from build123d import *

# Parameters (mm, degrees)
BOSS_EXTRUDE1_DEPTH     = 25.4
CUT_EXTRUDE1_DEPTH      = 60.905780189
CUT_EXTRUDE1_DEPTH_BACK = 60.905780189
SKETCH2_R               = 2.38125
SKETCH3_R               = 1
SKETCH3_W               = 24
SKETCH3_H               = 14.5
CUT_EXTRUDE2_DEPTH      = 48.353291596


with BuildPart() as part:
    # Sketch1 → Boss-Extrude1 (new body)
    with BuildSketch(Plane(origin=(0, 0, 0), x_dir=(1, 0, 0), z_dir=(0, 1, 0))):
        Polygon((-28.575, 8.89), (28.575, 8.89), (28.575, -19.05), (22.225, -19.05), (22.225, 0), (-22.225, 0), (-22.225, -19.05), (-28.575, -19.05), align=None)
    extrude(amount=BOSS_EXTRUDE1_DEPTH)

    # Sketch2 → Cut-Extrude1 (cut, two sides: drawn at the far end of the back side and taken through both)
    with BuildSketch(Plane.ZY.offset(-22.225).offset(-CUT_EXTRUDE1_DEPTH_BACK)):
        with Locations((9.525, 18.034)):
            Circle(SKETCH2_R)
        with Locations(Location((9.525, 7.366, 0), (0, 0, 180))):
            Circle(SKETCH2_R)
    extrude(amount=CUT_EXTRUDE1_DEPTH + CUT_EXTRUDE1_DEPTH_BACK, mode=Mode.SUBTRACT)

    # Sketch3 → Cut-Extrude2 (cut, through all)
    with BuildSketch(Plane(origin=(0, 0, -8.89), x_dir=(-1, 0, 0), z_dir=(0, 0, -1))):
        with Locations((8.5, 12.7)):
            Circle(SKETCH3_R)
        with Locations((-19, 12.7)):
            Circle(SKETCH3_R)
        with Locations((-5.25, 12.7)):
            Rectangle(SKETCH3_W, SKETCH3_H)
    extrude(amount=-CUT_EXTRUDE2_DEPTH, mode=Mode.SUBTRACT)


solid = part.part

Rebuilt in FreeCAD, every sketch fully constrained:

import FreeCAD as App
import Part
import Sketcher

V = App.Vector
Q = App.Units.Quantity


def add_polygon(sketch, points):
    """Adds a closed chain of lines whose ends are joined by coincident constraints."""
    first, n = sketch.GeometryCount, len(points)
    for a, b in zip(points, points[1:] + points[:1]):
        sketch.addGeometry(Part.LineSegment(App.Vector(*a, 0), App.Vector(*b, 0)), False)
    for i in range(n):
        sketch.addConstraint(Sketcher.Constraint("Coincident", first + i, 2, first + (i + 1) % n, 1))

doc = App.newDocument("Part")
body = doc.addObject("PartDesign::Body", "Body")

# Sketch on XZ plane
sketch1 = body.newObject("Sketcher::SketchObject", "Sketch")
sketch1.AttachmentSupport = (doc.getObject("XZ_Plane"), [""])
sketch1.MapMode = "FlatFace"
add_polygon(sketch1, [(29, -9), (-29, -9), (-29, 19), (-22, 19), (-22, 0), (22, 0), (22, 19), (29, 19)])  # lines 0-7
sketch1.addConstraint([
    Sketcher.Constraint("Horizontal", 0),
    Sketcher.Constraint("Vertical", 1),
    Sketcher.Constraint("Horizontal", 2),
    Sketcher.Constraint("Vertical", 3),
    Sketcher.Constraint("Horizontal", 4),
    Sketcher.Constraint("Vertical", 5),
    Sketcher.Constraint("Horizontal", 6),
    Sketcher.Constraint("Vertical", 7),
    Sketcher.Constraint("Symmetric", 3, 2, 4, 2, -1, 1),
    Sketcher.Constraint("Symmetric", 1, 2, 6, 2, -2),
    Sketcher.Constraint("DistanceY", 1, 1, 1, 2, Q("1.1 in")),
    Sketcher.Constraint("DistanceX", 0, 2, 4, 2, Q("2 in")),
    Sketcher.Constraint("DistanceX", 0, 2, 0, 1, Q("2.25 in")),
    Sketcher.Constraint("DistanceY", 3, 2, 3, 1, Q("0.75 in")),
])
pad1 = body.newObject("PartDesign::Pad", "Pad")
pad1.Profile = sketch1
pad1.Length = Q("1 in")
pad1.Reversed = True

# Sketch on YZ plane
sketch2 = body.newObject("Sketcher::SketchObject", "Sketch001")
sketch2.AttachmentSupport = (doc.getObject("YZ_Plane"), [""])
sketch2.MapMode = "FlatFace"
sketch2.AttachmentOffset = App.Placement(V(0, 0, 0.875 * 25.4), App.Rotation())
sketch2.addGeometry([
    Part.Circle(V(18, 9.5, 0), V(0, 0, 1), 2.4),
    Part.Circle(V(7.4, 9.5, 0), V(0, 0, 1), 2.4),
], False)
sketch2.addConstraint([
    Sketcher.Constraint("Equal", 0, 1),
    Sketcher.Constraint("Horizontal", 0, 3, 1, 3),
    Sketcher.Constraint("Diameter", 0, Q("0.1875 in")),
    Sketcher.Constraint("DistanceX", -1, 1, 0, 3, Q("0.71 in")),
    Sketcher.Constraint("DistanceX", -1, 1, 1, 3, Q("0.29 in")),
    Sketcher.Constraint("DistanceY", -1, 1, 0, 3, Q("0.375 in")),
])
pocket1 = body.newObject("PartDesign::Pocket", "Pocket")
pocket1.Profile = sketch2
pocket1.Type = "ThroughAll"
pocket1.Midplane = True

# Sketch on XY plane
sketch3 = body.newObject("Sketcher::SketchObject", "Sketch002")
sketch3.AttachmentSupport = (doc.getObject("XY_Plane"), [""])
sketch3.MapMode = "FlatFace"
sketch3.AttachmentOffset = App.Placement(V(0, 0, -0.35 * 25.4), App.Rotation())
sketch3.addGeometry(Part.Circle(V(-8.5, 12.7, 0), V(0, 0, 1), 1), False)  # 0
sketch3.addGeometry(Part.Circle(V(19, 12.7, 0), V(0, 0, 1), 1), False)  # 1
add_polygon(sketch3, [(17.2, 19.9), (17.2, 5.5), (-6.8, 5.5), (-6.8, 19.9)])  # lines 2-5
sketch3.addConstraint([
    Sketcher.Constraint("Vertical", 2),
    Sketcher.Constraint("Horizontal", 3),
    Sketcher.Constraint("Vertical", 4),
    Sketcher.Constraint("Horizontal", 5),
    Sketcher.Constraint("Equal", 0, 1),
    Sketcher.Constraint("Horizontal", 0, 3, 1, 3),
    Sketcher.Constraint("DistanceY", -1, 1, 0, 3, Q("0.5 in")),
    Sketcher.Constraint("Diameter", 0, 2.0),
    Sketcher.Constraint("DistanceX", 3, 2, 3, 1, 24.0),
    Sketcher.Constraint("DistanceY", 2, 2, 2, 1, 14.5),
    Sketcher.Constraint("DistanceX", 0, 3, -1, 1, 8.5),
    Sketcher.Constraint("DistanceX", -1, 1, 1, 3, 19.0),
    Sketcher.Constraint("DistanceX", -1, 1, 2, 2, 17.25),
    Sketcher.Constraint("DistanceY", -1, 1, 2, 2, 5.45),
])
pocket2 = body.newObject("PartDesign::Pocket", "Pocket001")
pocket2.Profile = sketch3
pocket2.Type = "ThroughAll"
pocket2.Reversed = True

doc.recompute()
